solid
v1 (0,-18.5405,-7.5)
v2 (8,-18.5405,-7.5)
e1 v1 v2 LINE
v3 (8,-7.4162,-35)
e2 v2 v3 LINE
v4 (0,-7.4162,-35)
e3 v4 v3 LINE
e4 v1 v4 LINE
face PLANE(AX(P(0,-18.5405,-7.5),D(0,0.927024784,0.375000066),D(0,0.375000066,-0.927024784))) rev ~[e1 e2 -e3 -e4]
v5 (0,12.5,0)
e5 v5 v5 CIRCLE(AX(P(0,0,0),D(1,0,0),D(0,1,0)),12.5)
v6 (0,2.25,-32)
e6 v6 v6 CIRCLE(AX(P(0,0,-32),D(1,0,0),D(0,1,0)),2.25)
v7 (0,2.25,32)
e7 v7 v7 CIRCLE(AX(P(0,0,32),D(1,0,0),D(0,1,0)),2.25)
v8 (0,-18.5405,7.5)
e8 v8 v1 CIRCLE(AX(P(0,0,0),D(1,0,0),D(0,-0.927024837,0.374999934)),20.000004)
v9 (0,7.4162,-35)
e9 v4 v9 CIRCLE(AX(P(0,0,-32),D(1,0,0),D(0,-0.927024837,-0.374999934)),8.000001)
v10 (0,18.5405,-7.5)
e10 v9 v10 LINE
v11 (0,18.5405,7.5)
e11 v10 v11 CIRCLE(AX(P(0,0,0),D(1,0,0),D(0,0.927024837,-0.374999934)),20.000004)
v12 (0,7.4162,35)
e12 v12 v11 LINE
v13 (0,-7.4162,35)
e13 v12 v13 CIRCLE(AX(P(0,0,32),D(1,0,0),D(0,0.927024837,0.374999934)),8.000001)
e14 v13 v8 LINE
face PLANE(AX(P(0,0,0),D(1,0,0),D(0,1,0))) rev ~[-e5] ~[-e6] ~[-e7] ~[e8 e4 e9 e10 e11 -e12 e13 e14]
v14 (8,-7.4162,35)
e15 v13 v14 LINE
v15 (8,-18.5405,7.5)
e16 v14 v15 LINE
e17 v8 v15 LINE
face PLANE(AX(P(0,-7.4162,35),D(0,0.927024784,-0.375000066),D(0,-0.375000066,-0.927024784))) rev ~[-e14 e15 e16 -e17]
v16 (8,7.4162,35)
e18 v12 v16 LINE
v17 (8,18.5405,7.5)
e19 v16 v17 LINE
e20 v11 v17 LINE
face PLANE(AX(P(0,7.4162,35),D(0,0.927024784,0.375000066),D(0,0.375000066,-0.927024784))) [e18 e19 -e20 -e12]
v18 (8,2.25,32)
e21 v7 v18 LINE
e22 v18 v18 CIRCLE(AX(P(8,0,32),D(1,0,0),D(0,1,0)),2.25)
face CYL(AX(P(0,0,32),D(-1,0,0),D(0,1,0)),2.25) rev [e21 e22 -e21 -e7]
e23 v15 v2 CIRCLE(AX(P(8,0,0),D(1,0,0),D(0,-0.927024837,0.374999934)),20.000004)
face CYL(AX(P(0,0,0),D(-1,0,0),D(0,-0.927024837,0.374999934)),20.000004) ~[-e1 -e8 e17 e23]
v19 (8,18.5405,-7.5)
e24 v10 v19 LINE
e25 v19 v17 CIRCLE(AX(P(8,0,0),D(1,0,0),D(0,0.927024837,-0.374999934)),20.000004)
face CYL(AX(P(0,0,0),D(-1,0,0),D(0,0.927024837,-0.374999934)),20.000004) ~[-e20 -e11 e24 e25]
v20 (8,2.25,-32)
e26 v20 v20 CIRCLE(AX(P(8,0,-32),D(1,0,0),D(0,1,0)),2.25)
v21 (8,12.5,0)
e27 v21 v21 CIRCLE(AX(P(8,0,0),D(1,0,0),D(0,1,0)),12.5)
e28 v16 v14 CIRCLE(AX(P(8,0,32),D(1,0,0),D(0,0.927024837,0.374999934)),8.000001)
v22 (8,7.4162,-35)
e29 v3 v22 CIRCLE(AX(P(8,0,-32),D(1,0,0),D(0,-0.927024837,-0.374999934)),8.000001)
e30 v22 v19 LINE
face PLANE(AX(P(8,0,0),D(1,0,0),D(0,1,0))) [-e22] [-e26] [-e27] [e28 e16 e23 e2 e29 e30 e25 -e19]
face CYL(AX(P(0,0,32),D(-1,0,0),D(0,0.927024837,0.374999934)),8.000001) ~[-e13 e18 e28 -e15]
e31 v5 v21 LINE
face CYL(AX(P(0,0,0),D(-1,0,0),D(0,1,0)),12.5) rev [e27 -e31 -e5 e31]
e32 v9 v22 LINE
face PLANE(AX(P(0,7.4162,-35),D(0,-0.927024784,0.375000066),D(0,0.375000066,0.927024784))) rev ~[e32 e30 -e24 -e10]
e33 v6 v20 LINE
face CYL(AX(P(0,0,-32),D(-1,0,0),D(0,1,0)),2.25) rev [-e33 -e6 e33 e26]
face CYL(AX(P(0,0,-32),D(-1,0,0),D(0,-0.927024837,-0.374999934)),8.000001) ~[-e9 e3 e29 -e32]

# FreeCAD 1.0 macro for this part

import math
import FreeCAD as App
import Part
import Sketcher

doc = App.newDocument("Part")
params = doc.addObject("Spreadsheet::Sheet", "Params")
for row, (alias, value) in enumerate([
    ("sketch1_diameter", "25 mm"),
    ("sketch1_radius", "8 mm"),
    ("sketch1_radius2", "20 mm"),
    ("sketch1_diameter2", "4.5 mm"),
    ("pad1_length", "8 mm"),
], start=1):
    params.set(f"A{row}", alias)
    params.set(f"B{row}", "=" + value)
    params.setAlias(f"B{row}", alias)

body = doc.addObject("PartDesign::Body", "Body")

sketch1 = body.newObject("Sketcher::SketchObject", "Sketch")
sketch1.AttachmentSupport = (doc.getObject("YZ_Plane"), [""])
sketch1.MapMode = "FlatFace"
sketch1.addGeometry([
    Part.LineSegment(App.Vector(-18.5405, -7.5, 0), App.Vector(-7.4162, -35, 0)),
    Part.ArcOfCircle(Part.Circle(App.Vector(0, -32, 0), App.Vector(0, 0, 1), 8.000001), math.radians(-157.975691), math.radians(-22.024309)),
    Part.LineSegment(App.Vector(7.4162, -35, 0), App.Vector(18.5405, -7.5, 0)),
    Part.ArcOfCircle(Part.Circle(App.Vector(0, 0, 0), App.Vector(0, 0, 1), 20.000004), math.radians(-22.024309), math.radians(22.024309)),
    Part.LineSegment(App.Vector(18.5405, 7.5, 0), App.Vector(7.4162, 35, 0)),
    Part.ArcOfCircle(Part.Circle(App.Vector(0, 32, 0), App.Vector(0, 0, 1), 8.000001), math.radians(22.024309), math.radians(157.975691)),
    Part.LineSegment(App.Vector(-7.4162, 35, 0), App.Vector(-18.5405, 7.5, 0)),
    Part.ArcOfCircle(Part.Circle(App.Vector(0, 0, 0), App.Vector(0, 0, 1), 20.000004), math.radians(157.975691), math.radians(202.024309)),
    Part.Circle(App.Vector(0, -32, 0), App.Vector(0, 0, 1), 2.25),
    Part.Circle(App.Vector(0, 0, 0), App.Vector(0, 0, 1), 12.5),
    Part.Circle(App.Vector(0, 32, 0), App.Vector(0, 0, 1), 2.25),
], False)
sketch1.addConstraint([
    Sketcher.Constraint("Tangent", 0, 2, 1, 1),
    Sketcher.Constraint("Tangent", 1, 2, 2, 1),
    Sketcher.Constraint("Tangent", 2, 2, 3, 1),
    Sketcher.Constraint("Tangent", 3, 2, 4, 1),
    Sketcher.Constraint("Tangent", 4, 2, 5, 1),
    Sketcher.Constraint("Tangent", 5, 2, 6, 1),
    Sketcher.Constraint("Tangent", 6, 2, 7, 1),
    Sketcher.Constraint("Tangent", 7, 2, 0, 1),
    Sketcher.Constraint("Coincident", 3, 3, -1, 1),
    Sketcher.Constraint("Coincident", 7, 3, -1, 1),
    Sketcher.Constraint("Coincident", 9, 3, -1, 1),
    Sketcher.Constraint("Coincident", 8, 3, 1, 3),
    Sketcher.Constraint("Coincident", 10, 3, 5, 3),
    Sketcher.Constraint("Equal", 1, 5),
    Sketcher.Constraint("Equal", 3, 7),
    Sketcher.Constraint("Equal", 8, 10),
    Sketcher.Constraint("Symmetric", 1, 3, 5, 3, -1, 1),
    Sketcher.Constraint("PointOnObject", 1, 3, -2),
    Sketcher.Constraint("Diameter", 9, 25.0),
    Sketcher.Constraint("Radius", 1, 8.0),
    Sketcher.Constraint("Radius", 3, 20.0),
    Sketcher.Constraint("Diameter", 8, 4.5),
    Sketcher.Constraint("DistanceY", 1, 3, 5, 3, 64.0),
])
sketch1.setExpression("Constraints[18]", "Params.sketch1_diameter")
sketch1.setExpression("Constraints[19]", "Params.sketch1_radius")
sketch1.setExpression("Constraints[20]", "Params.sketch1_radius2")
sketch1.setExpression("Constraints[21]", "Params.sketch1_diameter2")
pad1 = body.newObject("PartDesign::Pad", "Pad")
pad1.Profile = sketch1
pad1.setExpression("Length", "Params.pad1_length")

doc.recompute()
